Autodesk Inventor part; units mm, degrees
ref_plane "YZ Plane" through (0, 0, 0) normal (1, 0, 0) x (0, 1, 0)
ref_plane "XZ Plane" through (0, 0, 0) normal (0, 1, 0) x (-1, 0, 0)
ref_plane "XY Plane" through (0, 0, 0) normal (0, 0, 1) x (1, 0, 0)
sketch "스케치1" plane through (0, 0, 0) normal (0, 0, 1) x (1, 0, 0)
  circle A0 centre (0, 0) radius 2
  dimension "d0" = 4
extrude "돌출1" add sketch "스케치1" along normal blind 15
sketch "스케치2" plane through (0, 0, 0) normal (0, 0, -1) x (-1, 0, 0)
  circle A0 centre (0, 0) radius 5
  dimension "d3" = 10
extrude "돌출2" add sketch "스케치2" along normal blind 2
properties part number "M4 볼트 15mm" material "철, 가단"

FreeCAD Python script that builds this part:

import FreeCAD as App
import Part
import Sketcher
from FreeCAD import Vector
Q = App.Units.Quantity

doc = App.newDocument("Part")
body = doc.addObject("PartDesign::Body", "Body")

# Sketch on XY plane
sketch1 = body.newObject("Sketcher::SketchObject", "Sketch")
sketch1.AttachmentSupport = (doc.getObject("XY_Plane"), [""])
sketch1.MapMode = "FlatFace"
sketch1.addGeometry(Part.Circle(Vector(0, 0, 0), Vector(0, 0, 1), 2), False)
sketch1.addConstraint(Sketcher.Constraint("Coincident", 0, 3, -1, 1))
sketch1.addConstraint(Sketcher.Constraint("Diameter", 0, Q("4 mm")))
pad1 = body.newObject("PartDesign::Pad", "Pad")
pad1.Profile = sketch1
pad1.Length = 15

# Sketch on XY plane
sketch2 = body.newObject("Sketcher::SketchObject", "Sketch001")
sketch2.AttachmentSupport = (doc.getObject("XY_Plane"), [""])
sketch2.MapMode = "FlatFace"
sketch2.addGeometry(Part.Circle(Vector(0, 0, 0), Vector(0, 0, 1), 5), False)
sketch2.addConstraint(Sketcher.Constraint("Coincident", 0, 3, -1, 1))
sketch2.addConstraint(Sketcher.Constraint("Diameter", 0, Q("10 mm")))
pad2 = body.newObject("PartDesign::Pad", "Pad001")
pad2.Profile = sketch2
pad2.Length = 2
pad2.Reversed = True

doc.recompute()
